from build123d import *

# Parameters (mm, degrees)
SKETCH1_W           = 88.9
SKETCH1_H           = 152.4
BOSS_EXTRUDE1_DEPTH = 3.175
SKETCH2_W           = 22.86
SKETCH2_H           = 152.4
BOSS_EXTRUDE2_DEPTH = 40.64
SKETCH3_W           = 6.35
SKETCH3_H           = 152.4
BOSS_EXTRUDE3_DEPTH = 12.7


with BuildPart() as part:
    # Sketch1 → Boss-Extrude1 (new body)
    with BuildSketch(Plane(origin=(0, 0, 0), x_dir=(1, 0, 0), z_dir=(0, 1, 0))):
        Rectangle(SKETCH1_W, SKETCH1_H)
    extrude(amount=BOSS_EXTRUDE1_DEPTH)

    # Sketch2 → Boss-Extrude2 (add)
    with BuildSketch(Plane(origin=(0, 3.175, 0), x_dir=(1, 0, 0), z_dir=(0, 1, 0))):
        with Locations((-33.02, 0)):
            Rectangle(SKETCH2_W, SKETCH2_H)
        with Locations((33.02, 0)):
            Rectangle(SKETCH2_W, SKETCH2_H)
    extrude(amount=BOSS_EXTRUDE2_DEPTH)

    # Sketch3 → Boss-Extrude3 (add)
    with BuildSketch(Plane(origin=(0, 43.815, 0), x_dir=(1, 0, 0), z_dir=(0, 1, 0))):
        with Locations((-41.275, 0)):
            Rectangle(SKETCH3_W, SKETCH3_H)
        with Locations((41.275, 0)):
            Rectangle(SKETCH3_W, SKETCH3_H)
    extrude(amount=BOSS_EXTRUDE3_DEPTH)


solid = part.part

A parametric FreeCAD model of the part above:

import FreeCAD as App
import Part
import Sketcher

V = App.Vector
Q = App.Units.Quantity

doc = App.newDocument("Part")
params = doc.addObject("Spreadsheet::Sheet", "Params")
for row, (alias, value) in enumerate([
    ("sketch1_height", "6 in"),
    ("sketch1_width", "3.5 in"),
    ("pad1_length", "0.125 in"),
    ("sketch2_height", "6 in"),
    ("sketch2_width", "0.9 in"),
    ("pad2_length", "1.6 in"),
    ("sketch3_height", "6 in"),
    ("sketch3_width", "0.25 in"),
    ("pad3_length", "0.5 in"),
], start=1):
    params.set(f"A{row}", alias)
    params.set(f"B{row}", "=" + value)
    params.setAlias(f"B{row}", alias)

body = doc.addObject("PartDesign::Body", "Body")

# Sketch on XZ plane
sketch1 = body.newObject("Sketcher::SketchObject", "Sketch")
sketch1.AttachmentSupport = (doc.getObject("XZ_Plane"), [""])
sketch1.MapMode = "FlatFace"
sketch1.addGeometry(Part.LineSegment(V(-44.45, -76.2, 0), V(-44.45, 76.2, 0)), False)
sketch1.addGeometry(Part.LineSegment(V(-44.45, 76.2, 0), V(44.45, 76.2, 0)), False)
sketch1.addGeometry(Part.LineSegment(V(44.45, 76.2, 0), V(44.45, -76.2, 0)), False)
sketch1.addGeometry(Part.LineSegment(V(44.45, -76.2, 0), V(-44.45, -76.2, 0)), False)
sketch1.addConstraint(Sketcher.Constraint("Coincident", 0, 2, 1, 1))
sketch1.addConstraint(Sketcher.Constraint("Coincident", 1, 2, 2, 1))
sketch1.addConstraint(Sketcher.Constraint("Coincident", 2, 2, 3, 1))
sketch1.addConstraint(Sketcher.Constraint("Coincident", 3, 2, 0, 1))
sketch1.addConstraint(Sketcher.Constraint("Vertical", 0))
sketch1.addConstraint(Sketcher.Constraint("Horizontal", 1))
sketch1.addConstraint(Sketcher.Constraint("Vertical", 2))
sketch1.addConstraint(Sketcher.Constraint("Horizontal", 3))
sketch1.addConstraint(Sketcher.Constraint("Symmetric", 0, 2, 2, 2, -1, 1))
sketch1.addConstraint(Sketcher.Constraint("DistanceY", 0, 1, 0, 2, Q("6 in")))
sketch1.addConstraint(Sketcher.Constraint("DistanceX", 1, 1, 1, 2, Q("3.5 in")))
sketch1.setExpression("Constraints[9]", "Params.sketch1_height")
sketch1.setExpression("Constraints[10]", "Params.sketch1_width")
pad1 = body.newObject("PartDesign::Pad", "Pad")
pad1.Profile = sketch1
pad1.setExpression("Length", "Params.pad1_length")
pad1.Reversed = True

# Sketch on XZ plane
sketch2 = body.newObject("Sketcher::SketchObject", "Sketch001")
sketch2.AttachmentSupport = (doc.getObject("XZ_Plane"), [""])
sketch2.MapMode = "FlatFace"
sketch2.AttachmentOffset = App.Placement(V(0, 0, -0.125 * 25.4), App.Rotation())
sketch2.addGeometry(Part.LineSegment(V(-44.45, -76.2, 0), V(-44.45, 76.2, 0)), False)
sketch2.addGeometry(Part.LineSegment(V(-44.45, 76.2, 0), V(-21.59, 76.2, 0)), False)
sketch2.addGeometry(Part.LineSegment(V(-21.59, 76.2, 0), V(-21.59, -76.2, 0)), False)
sketch2.addGeometry(Part.LineSegment(V(-21.59, -76.2, 0), V(-44.45, -76.2, 0)), False)
sketch2.addGeometry(Part.LineSegment(V(21.59, -76.2, 0), V(21.59, 76.2, 0)), False)
sketch2.addGeometry(Part.LineSegment(V(21.59, 76.2, 0), V(44.45, 76.2, 0)), False)
sketch2.addGeometry(Part.LineSegment(V(44.45, 76.2, 0), V(44.45, -76.2, 0)), False)
sketch2.addGeometry(Part.LineSegment(V(44.45, -76.2, 0), V(21.59, -76.2, 0)), False)
sketch2.addConstraint(Sketcher.Constraint("Coincident", 0, 2, 1, 1))
sketch2.addConstraint(Sketcher.Constraint("Coincident", 1, 2, 2, 1))
sketch2.addConstraint(Sketcher.Constraint("Coincident", 2, 2, 3, 1))
sketch2.addConstraint(Sketcher.Constraint("Coincident", 3, 2, 0, 1))
sketch2.addConstraint(Sketcher.Constraint("Coincident", 4, 2, 5, 1))
sketch2.addConstraint(Sketcher.Constraint("Coincident", 5, 2, 6, 1))
sketch2.addConstraint(Sketcher.Constraint("Coincident", 6, 2, 7, 1))
sketch2.addConstraint(Sketcher.Constraint("Coincident", 7, 2, 4, 1))
sketch2.addConstraint(Sketcher.Constraint("Vertical", 0))
sketch2.addConstraint(Sketcher.Constraint("Horizontal", 1))
sketch2.addConstraint(Sketcher.Constraint("Vertical", 2))
sketch2.addConstraint(Sketcher.Constraint("Horizontal", 3))
sketch2.addConstraint(Sketcher.Constraint("Vertical", 4))
sketch2.addConstraint(Sketcher.Constraint("Horizontal", 5))
sketch2.addConstraint(Sketcher.Constraint("Vertical", 6))
sketch2.addConstraint(Sketcher.Constraint("Horizontal", 7))
sketch2.addConstraint(Sketcher.Constraint("Symmetric", 2, 2, 4, 2, -1, 1))
sketch2.addConstraint(Sketcher.Constraint("Symmetric", 0, 2, 6, 2, -1, 1))
sketch2.addConstraint(Sketcher.Constraint("Horizontal", 1, 2, 4, 2))
sketch2.addConstraint(Sketcher.Constraint("DistanceY", 0, 1, 0, 2, Q("6 in")))
sketch2.addConstraint(Sketcher.Constraint("DistanceX", 1, 1, 1, 2, Q("0.9 in")))
sketch2.addConstraint(Sketcher.Constraint("DistanceX", 1, 2, 4, 2, Q("1.7 in")))
sketch2.setExpression("Constraints[19]", "Params.sketch2_height")
sketch2.setExpression("Constraints[20]", "Params.sketch2_width")
pad2 = body.newObject("PartDesign::Pad", "Pad001")
pad2.Profile = sketch2
pad2.setExpression("Length", "Params.pad2_length")
pad2.Reversed = True

# Sketch on XZ plane
sketch3 = body.newObject("Sketcher::SketchObject", "Sketch002")
sketch3.AttachmentSupport = (doc.getObject("XZ_Plane"), [""])
sketch3.MapMode = "FlatFace"
sketch3.AttachmentOffset = App.Placement(V(0, 0, -1.725 * 25.4), App.Rotation())
sketch3.addGeometry(Part.LineSegment(V(-44.45, -76.2, 0), V(-44.45, 76.2, 0)), False)
sketch3.addGeometry(Part.LineSegment(V(-44.45, 76.2, 0), V(-38.1, 76.2, 0)), False)
sketch3.addGeometry(Part.LineSegment(V(-38.1, 76.2, 0), V(-38.1, -76.2, 0)), False)
sketch3.addGeometry(Part.LineSegment(V(-38.1, -76.2, 0), V(-44.45, -76.2, 0)), False)
sketch3.addGeometry(Part.LineSegment(V(38.1, -76.2, 0), V(38.1, 76.2, 0)), False)
sketch3.addGeometry(Part.LineSegment(V(38.1, 76.2, 0), V(44.45, 76.2, 0)), False)
sketch3.addGeometry(Part.LineSegment(V(44.45, 76.2, 0), V(44.45, -76.2, 0)), False)
sketch3.addGeometry(Part.LineSegment(V(44.45, -76.2, 0), V(38.1, -76.2, 0)), False)
sketch3.addConstraint(Sketcher.Constraint("Coincident", 0, 2, 1, 1))
sketch3.addConstraint(Sketcher.Constraint("Coincident", 1, 2, 2, 1))
sketch3.addConstraint(Sketcher.Constraint("Coincident", 2, 2, 3, 1))
sketch3.addConstraint(Sketcher.Constraint("Coincident", 3, 2, 0, 1))
sketch3.addConstraint(Sketcher.Constraint("Coincident", 4, 2, 5, 1))
sketch3.addConstraint(Sketcher.Constraint("Coincident", 5, 2, 6, 1))
sketch3.addConstraint(Sketcher.Constraint("Coincident", 6, 2, 7, 1))
sketch3.addConstraint(Sketcher.Constraint("Coincident", 7, 2, 4, 1))
sketch3.addConstraint(Sketcher.Constraint("Vertical", 0))
sketch3.addConstraint(Sketcher.Constraint("Horizontal", 1))
sketch3.addConstraint(Sketcher.Constraint("Vertical", 2))
sketch3.addConstraint(Sketcher.Constraint("Horizontal", 3))
sketch3.addConstraint(Sketcher.Constraint("Vertical", 4))
sketch3.addConstraint(Sketcher.Constraint("Horizontal", 5))
sketch3.addConstraint(Sketcher.Constraint("Vertical", 6))
sketch3.addConstraint(Sketcher.Constraint("Horizontal", 7))
sketch3.addConstraint(Sketcher.Constraint("Symmetric", 2, 2, 4, 2, -1, 1))
sketch3.addConstraint(Sketcher.Constraint("Symmetric", 0, 2, 6, 2, -1, 1))
sketch3.addConstraint(Sketcher.Constraint("Horizontal", 1, 2, 4, 2))
sketch3.addConstraint(Sketcher.Constraint("DistanceY", 0, 1, 0, 2, Q("6 in")))
sketch3.addConstraint(Sketcher.Constraint("DistanceX", 1, 2, 4, 2, Q("3 in")))
sketch3.addConstraint(Sketcher.Constraint("DistanceX", 1, 1, 1, 2, Q("0.25 in")))
sketch3.setExpression("Constraints[19]", "Params.sketch3_height")
sketch3.setExpression("Constraints[21]", "Params.sketch3_width")
pad3 = body.newObject("PartDesign::Pad", "Pad002")
pad3.Profile = sketch3
pad3.setExpression("Length", "Params.pad3_length")
pad3.Reversed = True

doc.recompute()
